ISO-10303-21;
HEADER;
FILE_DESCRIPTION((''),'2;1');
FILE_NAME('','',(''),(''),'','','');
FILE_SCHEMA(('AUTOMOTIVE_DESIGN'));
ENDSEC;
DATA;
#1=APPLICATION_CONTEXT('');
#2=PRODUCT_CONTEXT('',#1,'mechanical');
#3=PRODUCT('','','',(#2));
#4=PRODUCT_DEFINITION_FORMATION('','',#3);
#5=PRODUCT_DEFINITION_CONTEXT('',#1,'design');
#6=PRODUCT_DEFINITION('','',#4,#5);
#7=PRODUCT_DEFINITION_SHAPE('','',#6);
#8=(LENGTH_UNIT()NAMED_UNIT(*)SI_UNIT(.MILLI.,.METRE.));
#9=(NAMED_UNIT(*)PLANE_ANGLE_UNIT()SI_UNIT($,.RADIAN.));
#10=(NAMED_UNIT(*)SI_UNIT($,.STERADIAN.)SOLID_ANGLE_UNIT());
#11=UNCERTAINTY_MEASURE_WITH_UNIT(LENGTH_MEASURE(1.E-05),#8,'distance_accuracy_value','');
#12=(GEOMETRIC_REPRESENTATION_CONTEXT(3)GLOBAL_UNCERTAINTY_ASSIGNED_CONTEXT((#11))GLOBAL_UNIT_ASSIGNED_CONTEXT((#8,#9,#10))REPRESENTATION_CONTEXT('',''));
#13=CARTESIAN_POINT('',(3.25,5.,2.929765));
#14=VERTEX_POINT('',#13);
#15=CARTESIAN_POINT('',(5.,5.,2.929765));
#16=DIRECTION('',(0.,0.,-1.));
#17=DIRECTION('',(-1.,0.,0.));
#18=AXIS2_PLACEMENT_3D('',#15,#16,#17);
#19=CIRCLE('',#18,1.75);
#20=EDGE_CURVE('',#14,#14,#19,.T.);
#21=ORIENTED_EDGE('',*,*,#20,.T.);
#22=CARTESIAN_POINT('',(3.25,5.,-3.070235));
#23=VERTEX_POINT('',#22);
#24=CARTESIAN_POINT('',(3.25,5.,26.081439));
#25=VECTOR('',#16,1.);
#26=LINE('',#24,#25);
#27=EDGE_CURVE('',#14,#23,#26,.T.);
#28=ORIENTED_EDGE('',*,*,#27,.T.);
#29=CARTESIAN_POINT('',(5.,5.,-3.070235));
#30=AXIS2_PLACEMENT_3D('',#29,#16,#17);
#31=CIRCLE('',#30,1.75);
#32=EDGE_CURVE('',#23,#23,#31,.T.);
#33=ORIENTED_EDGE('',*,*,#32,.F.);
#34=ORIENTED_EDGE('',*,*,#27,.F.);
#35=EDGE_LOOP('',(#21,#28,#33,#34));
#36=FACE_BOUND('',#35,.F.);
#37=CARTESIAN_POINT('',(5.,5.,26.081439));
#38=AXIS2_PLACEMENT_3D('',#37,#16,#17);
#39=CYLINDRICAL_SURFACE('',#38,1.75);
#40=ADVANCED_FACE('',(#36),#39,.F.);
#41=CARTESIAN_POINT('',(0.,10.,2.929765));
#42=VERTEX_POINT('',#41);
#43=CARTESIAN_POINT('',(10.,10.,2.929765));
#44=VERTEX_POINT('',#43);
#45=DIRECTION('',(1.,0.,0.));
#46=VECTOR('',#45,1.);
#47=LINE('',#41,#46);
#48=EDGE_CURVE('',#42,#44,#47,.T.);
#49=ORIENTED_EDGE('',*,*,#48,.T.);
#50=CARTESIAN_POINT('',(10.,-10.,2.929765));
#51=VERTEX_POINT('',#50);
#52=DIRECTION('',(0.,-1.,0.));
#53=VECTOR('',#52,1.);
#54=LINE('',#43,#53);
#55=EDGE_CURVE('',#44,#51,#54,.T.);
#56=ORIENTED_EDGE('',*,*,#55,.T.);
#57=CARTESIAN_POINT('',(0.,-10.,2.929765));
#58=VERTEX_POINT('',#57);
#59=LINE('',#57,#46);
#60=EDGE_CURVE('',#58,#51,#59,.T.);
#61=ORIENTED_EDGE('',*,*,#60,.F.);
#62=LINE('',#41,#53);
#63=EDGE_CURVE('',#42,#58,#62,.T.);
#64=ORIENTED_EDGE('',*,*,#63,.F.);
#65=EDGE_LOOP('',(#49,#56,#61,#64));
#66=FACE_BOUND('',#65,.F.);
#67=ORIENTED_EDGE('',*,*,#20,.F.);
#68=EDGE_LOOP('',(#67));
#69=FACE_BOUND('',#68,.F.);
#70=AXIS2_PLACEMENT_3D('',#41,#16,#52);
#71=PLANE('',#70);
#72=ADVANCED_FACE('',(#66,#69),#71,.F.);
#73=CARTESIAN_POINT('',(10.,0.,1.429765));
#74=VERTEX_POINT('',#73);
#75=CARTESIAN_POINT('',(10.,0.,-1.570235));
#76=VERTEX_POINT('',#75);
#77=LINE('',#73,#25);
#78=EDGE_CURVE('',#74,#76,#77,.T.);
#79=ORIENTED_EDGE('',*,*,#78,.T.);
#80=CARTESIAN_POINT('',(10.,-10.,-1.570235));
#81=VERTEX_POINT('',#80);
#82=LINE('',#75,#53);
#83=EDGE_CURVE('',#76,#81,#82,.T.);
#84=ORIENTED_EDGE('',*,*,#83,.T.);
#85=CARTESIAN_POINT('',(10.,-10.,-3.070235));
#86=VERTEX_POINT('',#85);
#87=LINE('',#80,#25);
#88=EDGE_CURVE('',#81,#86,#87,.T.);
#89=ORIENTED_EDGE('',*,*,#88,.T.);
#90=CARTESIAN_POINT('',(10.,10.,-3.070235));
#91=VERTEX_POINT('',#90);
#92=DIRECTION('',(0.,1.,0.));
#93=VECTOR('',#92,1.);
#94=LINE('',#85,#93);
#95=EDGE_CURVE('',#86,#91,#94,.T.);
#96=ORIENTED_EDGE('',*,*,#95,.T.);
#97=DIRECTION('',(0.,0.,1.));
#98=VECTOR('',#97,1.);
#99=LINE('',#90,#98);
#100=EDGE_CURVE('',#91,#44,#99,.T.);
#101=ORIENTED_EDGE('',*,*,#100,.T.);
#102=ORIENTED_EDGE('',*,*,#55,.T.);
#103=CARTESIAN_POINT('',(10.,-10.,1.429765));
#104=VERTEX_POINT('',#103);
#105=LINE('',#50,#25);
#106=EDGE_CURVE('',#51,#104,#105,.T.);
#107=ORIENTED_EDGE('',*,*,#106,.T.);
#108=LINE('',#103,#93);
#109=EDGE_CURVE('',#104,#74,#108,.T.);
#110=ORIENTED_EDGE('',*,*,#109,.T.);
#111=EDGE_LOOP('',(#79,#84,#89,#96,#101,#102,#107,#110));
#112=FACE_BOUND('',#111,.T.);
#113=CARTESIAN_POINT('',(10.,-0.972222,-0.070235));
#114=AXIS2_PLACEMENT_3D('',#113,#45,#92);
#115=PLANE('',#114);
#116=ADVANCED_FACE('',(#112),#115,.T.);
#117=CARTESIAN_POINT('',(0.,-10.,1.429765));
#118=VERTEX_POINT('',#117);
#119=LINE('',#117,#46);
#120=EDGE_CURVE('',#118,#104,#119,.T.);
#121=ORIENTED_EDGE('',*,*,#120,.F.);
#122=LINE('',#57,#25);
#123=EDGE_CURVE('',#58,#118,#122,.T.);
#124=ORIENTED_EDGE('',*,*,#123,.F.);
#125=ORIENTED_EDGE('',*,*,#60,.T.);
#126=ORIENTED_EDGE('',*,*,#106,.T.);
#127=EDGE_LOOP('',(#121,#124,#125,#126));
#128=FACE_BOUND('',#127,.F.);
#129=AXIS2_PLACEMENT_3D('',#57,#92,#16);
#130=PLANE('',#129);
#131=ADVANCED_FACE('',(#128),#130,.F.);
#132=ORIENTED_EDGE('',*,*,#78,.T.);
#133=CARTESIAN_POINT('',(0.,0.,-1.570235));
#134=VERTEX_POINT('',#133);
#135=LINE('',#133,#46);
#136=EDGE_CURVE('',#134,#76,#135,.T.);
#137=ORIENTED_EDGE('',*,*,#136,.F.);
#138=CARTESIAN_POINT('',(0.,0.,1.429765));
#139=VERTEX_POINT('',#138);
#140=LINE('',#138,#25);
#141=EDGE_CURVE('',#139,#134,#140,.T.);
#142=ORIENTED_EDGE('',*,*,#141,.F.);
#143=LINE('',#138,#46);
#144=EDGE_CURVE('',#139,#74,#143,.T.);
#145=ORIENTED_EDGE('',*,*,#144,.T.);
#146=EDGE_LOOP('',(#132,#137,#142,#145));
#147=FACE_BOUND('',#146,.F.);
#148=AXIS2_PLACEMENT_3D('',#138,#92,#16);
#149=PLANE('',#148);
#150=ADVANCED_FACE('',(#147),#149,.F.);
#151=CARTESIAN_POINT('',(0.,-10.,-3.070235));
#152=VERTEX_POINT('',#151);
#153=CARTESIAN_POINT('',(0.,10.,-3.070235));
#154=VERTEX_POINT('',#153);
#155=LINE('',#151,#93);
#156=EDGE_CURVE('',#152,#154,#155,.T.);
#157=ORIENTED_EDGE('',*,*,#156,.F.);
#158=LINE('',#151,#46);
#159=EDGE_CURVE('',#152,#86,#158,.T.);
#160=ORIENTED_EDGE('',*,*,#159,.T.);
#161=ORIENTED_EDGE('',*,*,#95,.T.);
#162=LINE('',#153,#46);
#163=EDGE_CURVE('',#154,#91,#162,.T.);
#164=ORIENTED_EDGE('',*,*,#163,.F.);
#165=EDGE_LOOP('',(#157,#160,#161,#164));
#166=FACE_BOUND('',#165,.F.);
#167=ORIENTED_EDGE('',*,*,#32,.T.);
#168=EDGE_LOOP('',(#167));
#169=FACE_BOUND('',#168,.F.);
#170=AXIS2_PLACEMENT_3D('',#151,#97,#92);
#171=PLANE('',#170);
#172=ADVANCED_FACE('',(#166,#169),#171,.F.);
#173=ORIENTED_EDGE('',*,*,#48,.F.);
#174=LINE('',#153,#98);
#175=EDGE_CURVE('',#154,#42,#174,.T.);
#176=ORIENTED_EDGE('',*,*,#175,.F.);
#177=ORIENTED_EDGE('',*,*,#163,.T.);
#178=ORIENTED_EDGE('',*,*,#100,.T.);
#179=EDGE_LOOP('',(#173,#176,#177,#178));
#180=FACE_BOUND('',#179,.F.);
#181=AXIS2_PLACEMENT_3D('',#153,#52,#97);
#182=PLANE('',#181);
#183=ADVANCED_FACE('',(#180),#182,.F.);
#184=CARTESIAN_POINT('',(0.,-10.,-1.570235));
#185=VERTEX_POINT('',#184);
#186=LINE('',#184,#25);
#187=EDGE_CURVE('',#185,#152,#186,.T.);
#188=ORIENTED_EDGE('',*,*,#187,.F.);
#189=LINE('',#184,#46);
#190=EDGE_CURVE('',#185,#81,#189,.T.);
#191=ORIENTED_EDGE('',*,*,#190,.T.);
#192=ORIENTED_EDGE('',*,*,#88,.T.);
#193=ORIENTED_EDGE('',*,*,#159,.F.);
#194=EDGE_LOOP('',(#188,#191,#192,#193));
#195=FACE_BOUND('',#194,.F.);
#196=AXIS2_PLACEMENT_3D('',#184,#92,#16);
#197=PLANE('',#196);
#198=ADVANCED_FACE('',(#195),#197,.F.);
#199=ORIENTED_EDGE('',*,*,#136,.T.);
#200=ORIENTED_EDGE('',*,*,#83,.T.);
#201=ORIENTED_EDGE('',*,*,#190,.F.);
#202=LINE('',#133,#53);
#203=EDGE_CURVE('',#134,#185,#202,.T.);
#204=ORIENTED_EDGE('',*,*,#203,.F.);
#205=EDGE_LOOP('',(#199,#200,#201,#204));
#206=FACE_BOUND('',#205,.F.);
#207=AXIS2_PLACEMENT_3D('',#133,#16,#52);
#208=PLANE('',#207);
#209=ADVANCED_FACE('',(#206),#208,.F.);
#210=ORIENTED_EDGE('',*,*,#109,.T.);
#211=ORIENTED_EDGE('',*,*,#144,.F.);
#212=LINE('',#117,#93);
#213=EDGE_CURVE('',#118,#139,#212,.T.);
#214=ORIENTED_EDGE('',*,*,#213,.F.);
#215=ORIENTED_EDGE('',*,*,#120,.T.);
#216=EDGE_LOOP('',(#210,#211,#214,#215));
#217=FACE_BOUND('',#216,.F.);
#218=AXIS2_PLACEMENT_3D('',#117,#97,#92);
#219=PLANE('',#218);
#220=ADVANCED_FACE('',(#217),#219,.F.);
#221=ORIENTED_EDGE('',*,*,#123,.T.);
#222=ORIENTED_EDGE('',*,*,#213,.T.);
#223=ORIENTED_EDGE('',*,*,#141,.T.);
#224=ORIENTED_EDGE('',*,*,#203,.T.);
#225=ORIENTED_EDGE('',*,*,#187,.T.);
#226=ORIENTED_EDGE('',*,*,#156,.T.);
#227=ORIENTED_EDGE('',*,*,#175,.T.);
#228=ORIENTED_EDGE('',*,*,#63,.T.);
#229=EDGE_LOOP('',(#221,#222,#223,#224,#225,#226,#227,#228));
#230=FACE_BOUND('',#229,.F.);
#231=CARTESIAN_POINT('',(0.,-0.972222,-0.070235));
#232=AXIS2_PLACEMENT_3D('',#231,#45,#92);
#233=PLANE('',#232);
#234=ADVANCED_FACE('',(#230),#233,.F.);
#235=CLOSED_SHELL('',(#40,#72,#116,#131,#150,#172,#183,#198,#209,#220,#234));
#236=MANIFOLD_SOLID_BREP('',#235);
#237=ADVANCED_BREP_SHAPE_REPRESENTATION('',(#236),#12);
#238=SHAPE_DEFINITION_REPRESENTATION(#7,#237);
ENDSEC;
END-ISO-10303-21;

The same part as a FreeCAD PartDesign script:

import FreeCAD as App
import Part
import Sketcher

V = App.Vector

doc = App.newDocument("Part")
body = doc.addObject("PartDesign::Body", "Body")

sketch1 = doc.addObject("Sketcher::SketchObject", "Sketch")
body.addObject(sketch1)
sketch1.AttachmentSupport = (doc.YZ_Plane, [""])
sketch1.MapMode = "FlatFace"
sketch1.addGeometry(Part.LineSegment(V(-10, -3.1, 0), V(10, -3.1, 0)), False)
sketch1.addGeometry(Part.LineSegment(V(10, -3.1, 0), V(10, 2.9, 0)), False)
sketch1.addGeometry(Part.LineSegment(V(10, 2.9, 0), V(-10, 2.9, 0)), False)
sketch1.addGeometry(Part.LineSegment(V(-10, 2.9, 0), V(-10, 1.4, 0)), False)
sketch1.addGeometry(Part.LineSegment(V(-10, 1.4, 0), V(0, 1.4, 0)), False)
sketch1.addGeometry(Part.LineSegment(V(0, 1.4, 0), V(0, -1.6, 0)), False)
sketch1.addGeometry(Part.LineSegment(V(0, -1.6, 0), V(-10, -1.6, 0)), False)
sketch1.addGeometry(Part.LineSegment(V(-10, -1.6, 0), V(-10, -3.1, 0)), False)
sketch1.addConstraint(Sketcher.Constraint("Coincident", 0, 2, 1, 1))
sketch1.addConstraint(Sketcher.Constraint("Coincident", 1, 2, 2, 1))
sketch1.addConstraint(Sketcher.Constraint("Coincident", 2, 2, 3, 1))
sketch1.addConstraint(Sketcher.Constraint("Coincident", 3, 2, 4, 1))
sketch1.addConstraint(Sketcher.Constraint("Coincident", 4, 2, 5, 1))
sketch1.addConstraint(Sketcher.Constraint("Coincident", 5, 2, 6, 1))
sketch1.addConstraint(Sketcher.Constraint("Coincident", 6, 2, 7, 1))
sketch1.addConstraint(Sketcher.Constraint("Coincident", 7, 2, 0, 1))
sketch1.addConstraint(Sketcher.Constraint("Horizontal", 0))
sketch1.addConstraint(Sketcher.Constraint("Vertical", 1))
sketch1.addConstraint(Sketcher.Constraint("Horizontal", 2))
sketch1.addConstraint(Sketcher.Constraint("Vertical", 3))
sketch1.addConstraint(Sketcher.Constraint("Horizontal", 4))
sketch1.addConstraint(Sketcher.Constraint("Vertical", 5))
sketch1.addConstraint(Sketcher.Constraint("Horizontal", 6))
sketch1.addConstraint(Sketcher.Constraint("Vertical", 7))
sketch1.addConstraint(Sketcher.Constraint("PointOnObject", 4, 2, -2))
sketch1.addConstraint(Sketcher.Constraint("Vertical", 3, 2, 6, 2))
sketch1.addConstraint(Sketcher.Constraint("Equal", 3, 7))
sketch1.addConstraint(Sketcher.Constraint("DistanceX", 0, 1, 0, 2, 20.0))
sketch1.addConstraint(Sketcher.Constraint("DistanceX", 4, 1, 4, 2, 10.0))
sketch1.addConstraint(Sketcher.Constraint("DistanceY", 1, 1, 1, 2, 6.0))
sketch1.addConstraint(Sketcher.Constraint("DistanceY", 5, 2, 5, 1, 3.0))
sketch1.addConstraint(Sketcher.Constraint("DistanceY", 0, 2, -1, 1, 3.070235))
pad1 = doc.addObject("PartDesign::Pad", "Pad")
body.addObject(pad1)
pad1.Profile = sketch1
pad1.Length = 10

sketch2 = doc.addObject("Sketcher::SketchObject", "Sketch001")
body.addObject(sketch2)
sketch2.AttachmentSupport = (doc.XY_Plane, [""])
sketch2.MapMode = "FlatFace"
sketch2.AttachmentOffset = App.Placement(V(0, 0, 2.929765), App.Rotation())
sketch2.addGeometry(Part.Circle(V(5, 5, 0), V(0, 0, 1), 1.8), False)
sketch2.addConstraint(Sketcher.Constraint("Diameter", 0, 3.5))
sketch2.addConstraint(Sketcher.Constraint("DistanceX", -1, 1, 0, 3, 5.0))
sketch2.addConstraint(Sketcher.Constraint("DistanceY", -1, 1, 0, 3, 5.0))
doc.recompute()
hole = doc.addObject("PartDesign::Hole", "Hole")
body.addObject(hole)
hole.Profile = sketch2
hole.ThreadType = "None"
hole.Diameter = 3.5
hole.DepthType = "ThroughAll"

doc.recompute()
